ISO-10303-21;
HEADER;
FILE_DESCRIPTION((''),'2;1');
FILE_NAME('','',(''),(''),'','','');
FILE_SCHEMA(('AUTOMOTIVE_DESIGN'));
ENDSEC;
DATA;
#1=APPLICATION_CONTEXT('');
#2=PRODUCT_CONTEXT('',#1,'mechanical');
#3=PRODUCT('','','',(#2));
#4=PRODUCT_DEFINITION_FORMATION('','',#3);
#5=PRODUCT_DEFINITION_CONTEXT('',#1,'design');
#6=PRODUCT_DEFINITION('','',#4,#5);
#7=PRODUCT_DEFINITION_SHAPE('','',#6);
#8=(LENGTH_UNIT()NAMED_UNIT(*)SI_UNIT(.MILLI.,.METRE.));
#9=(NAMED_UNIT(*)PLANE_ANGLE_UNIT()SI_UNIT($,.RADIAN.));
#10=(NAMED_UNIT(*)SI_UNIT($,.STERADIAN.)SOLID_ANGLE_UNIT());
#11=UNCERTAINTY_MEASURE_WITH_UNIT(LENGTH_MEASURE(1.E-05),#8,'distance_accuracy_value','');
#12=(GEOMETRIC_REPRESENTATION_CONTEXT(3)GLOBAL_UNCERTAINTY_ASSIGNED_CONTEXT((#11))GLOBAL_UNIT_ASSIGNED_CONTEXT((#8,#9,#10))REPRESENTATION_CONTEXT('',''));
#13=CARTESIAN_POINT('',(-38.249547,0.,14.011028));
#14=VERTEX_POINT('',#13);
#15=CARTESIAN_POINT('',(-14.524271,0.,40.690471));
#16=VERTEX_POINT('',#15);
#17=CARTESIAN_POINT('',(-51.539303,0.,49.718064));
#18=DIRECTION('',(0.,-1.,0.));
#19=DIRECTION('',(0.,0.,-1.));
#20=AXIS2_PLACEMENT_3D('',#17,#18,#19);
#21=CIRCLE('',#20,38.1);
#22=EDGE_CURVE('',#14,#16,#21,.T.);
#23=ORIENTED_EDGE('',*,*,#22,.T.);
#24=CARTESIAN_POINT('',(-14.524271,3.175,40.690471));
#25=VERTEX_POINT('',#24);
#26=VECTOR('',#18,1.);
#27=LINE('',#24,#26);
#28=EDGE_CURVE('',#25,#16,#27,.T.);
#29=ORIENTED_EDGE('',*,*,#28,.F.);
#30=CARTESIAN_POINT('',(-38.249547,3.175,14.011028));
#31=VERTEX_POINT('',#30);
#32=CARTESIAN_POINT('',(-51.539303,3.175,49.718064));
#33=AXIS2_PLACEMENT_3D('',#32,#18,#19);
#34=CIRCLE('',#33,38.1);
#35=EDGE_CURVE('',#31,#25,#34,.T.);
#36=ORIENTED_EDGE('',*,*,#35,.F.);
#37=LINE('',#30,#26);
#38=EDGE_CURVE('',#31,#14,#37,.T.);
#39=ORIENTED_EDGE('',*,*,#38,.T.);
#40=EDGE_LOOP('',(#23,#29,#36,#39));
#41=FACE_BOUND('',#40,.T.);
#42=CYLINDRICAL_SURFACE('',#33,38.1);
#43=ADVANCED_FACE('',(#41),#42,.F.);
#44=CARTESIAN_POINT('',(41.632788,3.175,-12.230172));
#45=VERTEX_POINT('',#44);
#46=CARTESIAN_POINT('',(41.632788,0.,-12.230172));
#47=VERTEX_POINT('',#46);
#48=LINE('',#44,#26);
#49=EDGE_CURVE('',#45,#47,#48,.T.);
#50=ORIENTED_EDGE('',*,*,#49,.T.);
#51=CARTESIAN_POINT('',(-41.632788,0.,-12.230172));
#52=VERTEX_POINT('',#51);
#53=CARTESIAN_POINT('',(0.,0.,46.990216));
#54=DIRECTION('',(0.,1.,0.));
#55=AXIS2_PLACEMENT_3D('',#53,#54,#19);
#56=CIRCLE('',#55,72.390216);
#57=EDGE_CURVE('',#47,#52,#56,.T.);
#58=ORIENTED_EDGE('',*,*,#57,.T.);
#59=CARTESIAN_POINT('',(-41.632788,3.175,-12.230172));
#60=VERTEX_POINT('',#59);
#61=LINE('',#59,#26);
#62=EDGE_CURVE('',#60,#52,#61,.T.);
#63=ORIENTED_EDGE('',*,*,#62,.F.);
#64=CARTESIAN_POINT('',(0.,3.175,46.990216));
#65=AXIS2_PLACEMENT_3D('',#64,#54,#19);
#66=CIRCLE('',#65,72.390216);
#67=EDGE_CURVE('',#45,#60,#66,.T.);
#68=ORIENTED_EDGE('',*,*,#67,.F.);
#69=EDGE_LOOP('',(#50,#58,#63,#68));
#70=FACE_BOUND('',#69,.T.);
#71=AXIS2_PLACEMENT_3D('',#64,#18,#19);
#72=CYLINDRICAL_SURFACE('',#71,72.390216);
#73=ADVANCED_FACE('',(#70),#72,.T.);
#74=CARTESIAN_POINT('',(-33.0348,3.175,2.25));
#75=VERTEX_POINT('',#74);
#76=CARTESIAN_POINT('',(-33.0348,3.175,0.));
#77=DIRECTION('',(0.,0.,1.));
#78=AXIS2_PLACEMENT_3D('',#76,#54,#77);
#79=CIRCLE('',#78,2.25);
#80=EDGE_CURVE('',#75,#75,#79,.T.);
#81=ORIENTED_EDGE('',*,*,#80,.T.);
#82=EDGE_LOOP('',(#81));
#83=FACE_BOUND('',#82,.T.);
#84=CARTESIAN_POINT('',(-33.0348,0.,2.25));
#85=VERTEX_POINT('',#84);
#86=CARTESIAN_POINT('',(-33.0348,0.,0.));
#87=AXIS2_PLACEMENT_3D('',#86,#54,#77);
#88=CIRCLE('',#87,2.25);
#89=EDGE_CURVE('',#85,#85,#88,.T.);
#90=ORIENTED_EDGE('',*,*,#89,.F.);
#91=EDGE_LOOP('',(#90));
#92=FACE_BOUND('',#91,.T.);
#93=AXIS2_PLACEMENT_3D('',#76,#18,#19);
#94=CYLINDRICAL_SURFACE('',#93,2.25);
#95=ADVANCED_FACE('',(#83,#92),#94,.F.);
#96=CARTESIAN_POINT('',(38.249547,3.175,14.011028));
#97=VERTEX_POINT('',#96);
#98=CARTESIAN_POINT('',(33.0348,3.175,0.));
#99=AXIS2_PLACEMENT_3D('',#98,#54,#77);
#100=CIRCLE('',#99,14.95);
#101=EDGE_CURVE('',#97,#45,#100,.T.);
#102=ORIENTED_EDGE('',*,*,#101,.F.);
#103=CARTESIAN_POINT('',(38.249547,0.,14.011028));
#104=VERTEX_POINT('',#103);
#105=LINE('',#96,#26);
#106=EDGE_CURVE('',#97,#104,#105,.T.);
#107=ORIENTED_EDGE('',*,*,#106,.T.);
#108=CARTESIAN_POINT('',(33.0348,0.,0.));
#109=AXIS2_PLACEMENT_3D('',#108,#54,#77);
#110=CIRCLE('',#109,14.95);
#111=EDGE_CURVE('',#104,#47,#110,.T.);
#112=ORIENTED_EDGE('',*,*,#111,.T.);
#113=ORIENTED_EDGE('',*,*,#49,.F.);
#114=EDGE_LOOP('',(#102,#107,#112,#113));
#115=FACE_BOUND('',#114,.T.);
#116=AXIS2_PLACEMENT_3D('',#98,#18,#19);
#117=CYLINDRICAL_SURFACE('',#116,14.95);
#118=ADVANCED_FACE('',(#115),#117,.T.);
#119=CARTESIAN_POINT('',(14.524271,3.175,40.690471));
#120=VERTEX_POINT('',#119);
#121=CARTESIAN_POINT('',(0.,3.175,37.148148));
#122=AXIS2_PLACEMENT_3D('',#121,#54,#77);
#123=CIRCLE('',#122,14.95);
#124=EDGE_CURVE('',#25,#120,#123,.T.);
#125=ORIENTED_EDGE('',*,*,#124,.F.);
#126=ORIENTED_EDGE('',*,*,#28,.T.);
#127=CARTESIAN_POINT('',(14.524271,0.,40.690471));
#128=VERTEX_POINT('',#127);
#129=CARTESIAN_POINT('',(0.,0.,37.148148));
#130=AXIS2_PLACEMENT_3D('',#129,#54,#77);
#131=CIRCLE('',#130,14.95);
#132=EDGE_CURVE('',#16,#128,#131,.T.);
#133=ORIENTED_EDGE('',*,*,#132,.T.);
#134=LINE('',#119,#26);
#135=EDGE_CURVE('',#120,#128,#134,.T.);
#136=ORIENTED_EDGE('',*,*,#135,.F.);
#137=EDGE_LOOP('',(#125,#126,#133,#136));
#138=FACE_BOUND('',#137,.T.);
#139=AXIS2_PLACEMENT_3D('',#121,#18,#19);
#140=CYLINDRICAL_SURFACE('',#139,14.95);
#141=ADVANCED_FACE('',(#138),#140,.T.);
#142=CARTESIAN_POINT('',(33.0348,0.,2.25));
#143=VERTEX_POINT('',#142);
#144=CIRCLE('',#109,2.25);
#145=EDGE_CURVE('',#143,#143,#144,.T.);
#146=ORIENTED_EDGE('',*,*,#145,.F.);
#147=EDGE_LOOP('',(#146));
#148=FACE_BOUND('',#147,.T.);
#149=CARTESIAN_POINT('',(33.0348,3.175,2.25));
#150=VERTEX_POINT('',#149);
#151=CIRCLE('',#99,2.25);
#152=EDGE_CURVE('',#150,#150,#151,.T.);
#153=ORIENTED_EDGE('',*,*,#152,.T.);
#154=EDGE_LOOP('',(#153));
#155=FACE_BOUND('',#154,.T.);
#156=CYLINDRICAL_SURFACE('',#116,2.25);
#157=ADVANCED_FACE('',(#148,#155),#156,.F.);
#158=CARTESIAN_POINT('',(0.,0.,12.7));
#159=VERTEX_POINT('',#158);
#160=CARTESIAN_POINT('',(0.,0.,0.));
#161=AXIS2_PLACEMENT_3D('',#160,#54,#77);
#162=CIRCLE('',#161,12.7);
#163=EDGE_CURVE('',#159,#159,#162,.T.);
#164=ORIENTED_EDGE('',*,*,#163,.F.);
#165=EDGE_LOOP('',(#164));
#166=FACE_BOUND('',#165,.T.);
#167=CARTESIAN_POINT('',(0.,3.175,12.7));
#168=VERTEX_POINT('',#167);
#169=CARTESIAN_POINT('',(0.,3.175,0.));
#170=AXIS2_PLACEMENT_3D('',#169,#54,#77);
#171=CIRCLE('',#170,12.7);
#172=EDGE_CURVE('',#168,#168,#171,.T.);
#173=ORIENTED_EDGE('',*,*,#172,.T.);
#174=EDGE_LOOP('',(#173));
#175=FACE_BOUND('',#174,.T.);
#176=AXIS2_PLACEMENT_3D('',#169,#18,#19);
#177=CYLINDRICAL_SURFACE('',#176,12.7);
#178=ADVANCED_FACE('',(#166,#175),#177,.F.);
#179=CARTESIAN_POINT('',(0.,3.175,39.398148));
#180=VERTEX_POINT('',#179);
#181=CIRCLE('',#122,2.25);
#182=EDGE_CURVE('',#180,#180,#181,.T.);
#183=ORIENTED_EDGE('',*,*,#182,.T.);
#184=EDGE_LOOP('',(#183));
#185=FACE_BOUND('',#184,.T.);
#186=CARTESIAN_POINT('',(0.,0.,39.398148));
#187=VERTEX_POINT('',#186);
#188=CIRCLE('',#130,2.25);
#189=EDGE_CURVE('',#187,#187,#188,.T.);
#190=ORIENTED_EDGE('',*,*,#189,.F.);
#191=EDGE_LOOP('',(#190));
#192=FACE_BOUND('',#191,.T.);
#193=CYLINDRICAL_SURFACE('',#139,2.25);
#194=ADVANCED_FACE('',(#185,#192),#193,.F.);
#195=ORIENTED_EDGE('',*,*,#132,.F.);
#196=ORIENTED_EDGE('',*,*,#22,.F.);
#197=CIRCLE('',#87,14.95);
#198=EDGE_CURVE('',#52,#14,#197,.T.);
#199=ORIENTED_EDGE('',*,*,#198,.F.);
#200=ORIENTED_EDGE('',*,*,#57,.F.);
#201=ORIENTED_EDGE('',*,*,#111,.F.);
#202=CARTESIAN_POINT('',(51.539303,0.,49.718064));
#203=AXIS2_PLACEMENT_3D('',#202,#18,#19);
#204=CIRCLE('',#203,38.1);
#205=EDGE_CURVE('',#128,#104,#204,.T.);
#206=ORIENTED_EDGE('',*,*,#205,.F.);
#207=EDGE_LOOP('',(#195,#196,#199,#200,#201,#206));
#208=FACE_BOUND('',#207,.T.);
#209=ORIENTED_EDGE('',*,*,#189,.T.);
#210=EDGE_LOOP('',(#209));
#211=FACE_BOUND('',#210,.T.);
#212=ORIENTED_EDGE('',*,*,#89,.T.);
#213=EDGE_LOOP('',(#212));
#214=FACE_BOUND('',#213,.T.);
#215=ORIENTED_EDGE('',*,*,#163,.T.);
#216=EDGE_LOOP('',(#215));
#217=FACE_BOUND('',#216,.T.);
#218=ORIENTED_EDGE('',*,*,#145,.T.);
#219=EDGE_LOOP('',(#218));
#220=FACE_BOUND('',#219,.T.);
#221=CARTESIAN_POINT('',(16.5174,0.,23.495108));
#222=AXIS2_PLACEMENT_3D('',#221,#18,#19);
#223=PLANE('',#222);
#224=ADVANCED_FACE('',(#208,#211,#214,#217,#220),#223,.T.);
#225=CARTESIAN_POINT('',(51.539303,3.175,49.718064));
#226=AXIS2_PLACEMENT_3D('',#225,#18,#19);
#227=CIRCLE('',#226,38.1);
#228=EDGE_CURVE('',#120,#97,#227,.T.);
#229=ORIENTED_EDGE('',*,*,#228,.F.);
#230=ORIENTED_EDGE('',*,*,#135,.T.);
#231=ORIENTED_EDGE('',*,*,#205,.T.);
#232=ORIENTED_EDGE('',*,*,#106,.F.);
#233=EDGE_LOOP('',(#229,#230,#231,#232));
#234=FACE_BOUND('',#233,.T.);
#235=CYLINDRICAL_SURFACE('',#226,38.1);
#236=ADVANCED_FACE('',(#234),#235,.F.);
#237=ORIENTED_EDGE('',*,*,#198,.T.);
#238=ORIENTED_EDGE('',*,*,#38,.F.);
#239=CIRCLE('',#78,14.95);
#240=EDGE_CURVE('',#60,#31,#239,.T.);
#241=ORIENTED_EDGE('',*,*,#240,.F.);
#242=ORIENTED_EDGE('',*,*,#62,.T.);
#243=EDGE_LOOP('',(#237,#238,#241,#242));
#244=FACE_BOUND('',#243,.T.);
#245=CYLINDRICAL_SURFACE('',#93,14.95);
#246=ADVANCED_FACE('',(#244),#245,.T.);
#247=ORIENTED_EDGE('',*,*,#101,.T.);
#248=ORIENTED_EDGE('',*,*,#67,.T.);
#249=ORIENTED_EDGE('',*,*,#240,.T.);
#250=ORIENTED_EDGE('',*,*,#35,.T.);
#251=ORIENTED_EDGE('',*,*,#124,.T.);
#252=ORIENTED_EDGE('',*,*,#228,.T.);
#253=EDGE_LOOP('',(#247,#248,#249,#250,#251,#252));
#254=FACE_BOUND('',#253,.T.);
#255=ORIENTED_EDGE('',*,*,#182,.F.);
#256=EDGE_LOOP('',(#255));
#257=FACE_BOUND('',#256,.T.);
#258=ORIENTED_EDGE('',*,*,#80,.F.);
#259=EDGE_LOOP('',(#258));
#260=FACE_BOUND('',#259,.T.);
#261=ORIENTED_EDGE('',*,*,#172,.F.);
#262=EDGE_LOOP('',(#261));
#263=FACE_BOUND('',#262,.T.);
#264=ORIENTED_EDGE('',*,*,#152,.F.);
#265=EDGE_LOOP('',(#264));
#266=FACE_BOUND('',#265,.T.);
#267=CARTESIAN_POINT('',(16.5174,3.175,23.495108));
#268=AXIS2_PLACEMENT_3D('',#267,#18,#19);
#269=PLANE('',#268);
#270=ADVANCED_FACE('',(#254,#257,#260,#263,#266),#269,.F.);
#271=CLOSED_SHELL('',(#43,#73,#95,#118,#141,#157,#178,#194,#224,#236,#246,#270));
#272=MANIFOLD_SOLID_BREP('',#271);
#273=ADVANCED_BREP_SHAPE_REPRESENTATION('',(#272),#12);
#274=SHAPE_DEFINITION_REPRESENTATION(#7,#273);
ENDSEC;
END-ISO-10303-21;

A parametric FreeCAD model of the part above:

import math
import FreeCAD as App
import Part
import Sketcher
Q = App.Units.Quantity

doc = App.newDocument("Part")
body = doc.addObject("PartDesign::Body", "Body")

# Sketch on XZ plane
sketch1 = body.newObject("Sketcher::SketchObject", "Sketch")
sketch1.AttachmentSupport = (doc.getObject("XZ_Plane"), [""])
sketch1.MapMode = "FlatFace"
sketch1.addGeometry([
    Part.ArcOfCircle(Part.Circle(App.Vector(-33, 0, 0), App.Vector(0, 0, 1), 14.9), math.radians(110), math.radians(235)),  # 0
    Part.ArcOfCircle(Part.Circle(App.Vector(-51.5, 49.7, 0), App.Vector(0, 0, 1), 38.1), math.radians(-70), math.radians(-14)),  # 1
    Part.ArcOfCircle(Part.Circle(App.Vector(0, 37.1, 0), App.Vector(0, 0, 1), 14.9), math.radians(14), math.radians(166)),  # 2
    Part.ArcOfCircle(Part.Circle(App.Vector(51.5, 49.7, 0), App.Vector(0, 0, 1), 38.1), math.radians(-166), math.radians(-110)),  # 3
    Part.ArcOfCircle(Part.Circle(App.Vector(33, 0, 0), App.Vector(0, 0, 1), 14.9), math.radians(-55), math.radians(70)),  # 4
    Part.ArcOfCircle(Part.Circle(App.Vector(0, 47, 0), App.Vector(0, 0, 1), 72.4), math.radians(-125), math.radians(-55)),  # 5
    Part.Circle(App.Vector(0, 37.1, 0), App.Vector(0, 0, 1), 2.2),  # 6
    Part.Circle(App.Vector(-33, 0, 0), App.Vector(0, 0, 1), 2.2),  # 7
    Part.Circle(App.Vector(0, 0, 0), App.Vector(0, 0, 1), 12.7),  # 8
    Part.Circle(App.Vector(33, 0, 0), App.Vector(0, 0, 1), 2.2),  # 9
], False)
sketch1.addConstraint([
    Sketcher.Constraint("Tangent", 0, 1, 1, 1),
    Sketcher.Constraint("Tangent", 1, 2, 2, 2),
    Sketcher.Constraint("Tangent", 2, 1, 3, 1),
    Sketcher.Constraint("Tangent", 3, 2, 4, 2),
    Sketcher.Constraint("Tangent", 4, 1, 5, 2),
    Sketcher.Constraint("Tangent", 5, 1, 0, 2),
    Sketcher.Constraint("Coincident", 8, 3, -1, 1),
    Sketcher.Constraint("Coincident", 6, 3, 2, 3),
    Sketcher.Constraint("Coincident", 7, 3, 0, 3),
    Sketcher.Constraint("Coincident", 9, 3, 4, 3),
    Sketcher.Constraint("Equal", 0, 2),
    Sketcher.Constraint("Equal", 1, 3),
    Sketcher.Constraint("Equal", 2, 4),
    Sketcher.Constraint("Equal", 6, 7),
    Sketcher.Constraint("Equal", 7, 9),
    Sketcher.Constraint("Symmetric", 0, 3, 4, 3, -1, 1),
    Sketcher.Constraint("Symmetric", 1, 3, 3, 3, -2),
    Sketcher.Constraint("Diameter", 8, Q("1 in")),
    Sketcher.Constraint("Radius", 1, Q("1.5 in")),
    Sketcher.Constraint("Diameter", 6, Q("4.5 mm")),
    Sketcher.Constraint("Radius", 0, Q("14.95 mm")),
    Sketcher.Constraint("Radius", 5, Q("72.390216 mm")),
    Sketcher.Constraint("DistanceX", 0, 3, -1, 1, Q("33.0348 mm")),
    Sketcher.Constraint("DistanceY", -1, 1, 2, 3, Q("37.148148 mm")),
])
pad1 = body.newObject("PartDesign::Pad", "Pad")
pad1.Profile = sketch1
pad1.Length = Q("0.125 in")
pad1.Reversed = True

doc.recompute()
